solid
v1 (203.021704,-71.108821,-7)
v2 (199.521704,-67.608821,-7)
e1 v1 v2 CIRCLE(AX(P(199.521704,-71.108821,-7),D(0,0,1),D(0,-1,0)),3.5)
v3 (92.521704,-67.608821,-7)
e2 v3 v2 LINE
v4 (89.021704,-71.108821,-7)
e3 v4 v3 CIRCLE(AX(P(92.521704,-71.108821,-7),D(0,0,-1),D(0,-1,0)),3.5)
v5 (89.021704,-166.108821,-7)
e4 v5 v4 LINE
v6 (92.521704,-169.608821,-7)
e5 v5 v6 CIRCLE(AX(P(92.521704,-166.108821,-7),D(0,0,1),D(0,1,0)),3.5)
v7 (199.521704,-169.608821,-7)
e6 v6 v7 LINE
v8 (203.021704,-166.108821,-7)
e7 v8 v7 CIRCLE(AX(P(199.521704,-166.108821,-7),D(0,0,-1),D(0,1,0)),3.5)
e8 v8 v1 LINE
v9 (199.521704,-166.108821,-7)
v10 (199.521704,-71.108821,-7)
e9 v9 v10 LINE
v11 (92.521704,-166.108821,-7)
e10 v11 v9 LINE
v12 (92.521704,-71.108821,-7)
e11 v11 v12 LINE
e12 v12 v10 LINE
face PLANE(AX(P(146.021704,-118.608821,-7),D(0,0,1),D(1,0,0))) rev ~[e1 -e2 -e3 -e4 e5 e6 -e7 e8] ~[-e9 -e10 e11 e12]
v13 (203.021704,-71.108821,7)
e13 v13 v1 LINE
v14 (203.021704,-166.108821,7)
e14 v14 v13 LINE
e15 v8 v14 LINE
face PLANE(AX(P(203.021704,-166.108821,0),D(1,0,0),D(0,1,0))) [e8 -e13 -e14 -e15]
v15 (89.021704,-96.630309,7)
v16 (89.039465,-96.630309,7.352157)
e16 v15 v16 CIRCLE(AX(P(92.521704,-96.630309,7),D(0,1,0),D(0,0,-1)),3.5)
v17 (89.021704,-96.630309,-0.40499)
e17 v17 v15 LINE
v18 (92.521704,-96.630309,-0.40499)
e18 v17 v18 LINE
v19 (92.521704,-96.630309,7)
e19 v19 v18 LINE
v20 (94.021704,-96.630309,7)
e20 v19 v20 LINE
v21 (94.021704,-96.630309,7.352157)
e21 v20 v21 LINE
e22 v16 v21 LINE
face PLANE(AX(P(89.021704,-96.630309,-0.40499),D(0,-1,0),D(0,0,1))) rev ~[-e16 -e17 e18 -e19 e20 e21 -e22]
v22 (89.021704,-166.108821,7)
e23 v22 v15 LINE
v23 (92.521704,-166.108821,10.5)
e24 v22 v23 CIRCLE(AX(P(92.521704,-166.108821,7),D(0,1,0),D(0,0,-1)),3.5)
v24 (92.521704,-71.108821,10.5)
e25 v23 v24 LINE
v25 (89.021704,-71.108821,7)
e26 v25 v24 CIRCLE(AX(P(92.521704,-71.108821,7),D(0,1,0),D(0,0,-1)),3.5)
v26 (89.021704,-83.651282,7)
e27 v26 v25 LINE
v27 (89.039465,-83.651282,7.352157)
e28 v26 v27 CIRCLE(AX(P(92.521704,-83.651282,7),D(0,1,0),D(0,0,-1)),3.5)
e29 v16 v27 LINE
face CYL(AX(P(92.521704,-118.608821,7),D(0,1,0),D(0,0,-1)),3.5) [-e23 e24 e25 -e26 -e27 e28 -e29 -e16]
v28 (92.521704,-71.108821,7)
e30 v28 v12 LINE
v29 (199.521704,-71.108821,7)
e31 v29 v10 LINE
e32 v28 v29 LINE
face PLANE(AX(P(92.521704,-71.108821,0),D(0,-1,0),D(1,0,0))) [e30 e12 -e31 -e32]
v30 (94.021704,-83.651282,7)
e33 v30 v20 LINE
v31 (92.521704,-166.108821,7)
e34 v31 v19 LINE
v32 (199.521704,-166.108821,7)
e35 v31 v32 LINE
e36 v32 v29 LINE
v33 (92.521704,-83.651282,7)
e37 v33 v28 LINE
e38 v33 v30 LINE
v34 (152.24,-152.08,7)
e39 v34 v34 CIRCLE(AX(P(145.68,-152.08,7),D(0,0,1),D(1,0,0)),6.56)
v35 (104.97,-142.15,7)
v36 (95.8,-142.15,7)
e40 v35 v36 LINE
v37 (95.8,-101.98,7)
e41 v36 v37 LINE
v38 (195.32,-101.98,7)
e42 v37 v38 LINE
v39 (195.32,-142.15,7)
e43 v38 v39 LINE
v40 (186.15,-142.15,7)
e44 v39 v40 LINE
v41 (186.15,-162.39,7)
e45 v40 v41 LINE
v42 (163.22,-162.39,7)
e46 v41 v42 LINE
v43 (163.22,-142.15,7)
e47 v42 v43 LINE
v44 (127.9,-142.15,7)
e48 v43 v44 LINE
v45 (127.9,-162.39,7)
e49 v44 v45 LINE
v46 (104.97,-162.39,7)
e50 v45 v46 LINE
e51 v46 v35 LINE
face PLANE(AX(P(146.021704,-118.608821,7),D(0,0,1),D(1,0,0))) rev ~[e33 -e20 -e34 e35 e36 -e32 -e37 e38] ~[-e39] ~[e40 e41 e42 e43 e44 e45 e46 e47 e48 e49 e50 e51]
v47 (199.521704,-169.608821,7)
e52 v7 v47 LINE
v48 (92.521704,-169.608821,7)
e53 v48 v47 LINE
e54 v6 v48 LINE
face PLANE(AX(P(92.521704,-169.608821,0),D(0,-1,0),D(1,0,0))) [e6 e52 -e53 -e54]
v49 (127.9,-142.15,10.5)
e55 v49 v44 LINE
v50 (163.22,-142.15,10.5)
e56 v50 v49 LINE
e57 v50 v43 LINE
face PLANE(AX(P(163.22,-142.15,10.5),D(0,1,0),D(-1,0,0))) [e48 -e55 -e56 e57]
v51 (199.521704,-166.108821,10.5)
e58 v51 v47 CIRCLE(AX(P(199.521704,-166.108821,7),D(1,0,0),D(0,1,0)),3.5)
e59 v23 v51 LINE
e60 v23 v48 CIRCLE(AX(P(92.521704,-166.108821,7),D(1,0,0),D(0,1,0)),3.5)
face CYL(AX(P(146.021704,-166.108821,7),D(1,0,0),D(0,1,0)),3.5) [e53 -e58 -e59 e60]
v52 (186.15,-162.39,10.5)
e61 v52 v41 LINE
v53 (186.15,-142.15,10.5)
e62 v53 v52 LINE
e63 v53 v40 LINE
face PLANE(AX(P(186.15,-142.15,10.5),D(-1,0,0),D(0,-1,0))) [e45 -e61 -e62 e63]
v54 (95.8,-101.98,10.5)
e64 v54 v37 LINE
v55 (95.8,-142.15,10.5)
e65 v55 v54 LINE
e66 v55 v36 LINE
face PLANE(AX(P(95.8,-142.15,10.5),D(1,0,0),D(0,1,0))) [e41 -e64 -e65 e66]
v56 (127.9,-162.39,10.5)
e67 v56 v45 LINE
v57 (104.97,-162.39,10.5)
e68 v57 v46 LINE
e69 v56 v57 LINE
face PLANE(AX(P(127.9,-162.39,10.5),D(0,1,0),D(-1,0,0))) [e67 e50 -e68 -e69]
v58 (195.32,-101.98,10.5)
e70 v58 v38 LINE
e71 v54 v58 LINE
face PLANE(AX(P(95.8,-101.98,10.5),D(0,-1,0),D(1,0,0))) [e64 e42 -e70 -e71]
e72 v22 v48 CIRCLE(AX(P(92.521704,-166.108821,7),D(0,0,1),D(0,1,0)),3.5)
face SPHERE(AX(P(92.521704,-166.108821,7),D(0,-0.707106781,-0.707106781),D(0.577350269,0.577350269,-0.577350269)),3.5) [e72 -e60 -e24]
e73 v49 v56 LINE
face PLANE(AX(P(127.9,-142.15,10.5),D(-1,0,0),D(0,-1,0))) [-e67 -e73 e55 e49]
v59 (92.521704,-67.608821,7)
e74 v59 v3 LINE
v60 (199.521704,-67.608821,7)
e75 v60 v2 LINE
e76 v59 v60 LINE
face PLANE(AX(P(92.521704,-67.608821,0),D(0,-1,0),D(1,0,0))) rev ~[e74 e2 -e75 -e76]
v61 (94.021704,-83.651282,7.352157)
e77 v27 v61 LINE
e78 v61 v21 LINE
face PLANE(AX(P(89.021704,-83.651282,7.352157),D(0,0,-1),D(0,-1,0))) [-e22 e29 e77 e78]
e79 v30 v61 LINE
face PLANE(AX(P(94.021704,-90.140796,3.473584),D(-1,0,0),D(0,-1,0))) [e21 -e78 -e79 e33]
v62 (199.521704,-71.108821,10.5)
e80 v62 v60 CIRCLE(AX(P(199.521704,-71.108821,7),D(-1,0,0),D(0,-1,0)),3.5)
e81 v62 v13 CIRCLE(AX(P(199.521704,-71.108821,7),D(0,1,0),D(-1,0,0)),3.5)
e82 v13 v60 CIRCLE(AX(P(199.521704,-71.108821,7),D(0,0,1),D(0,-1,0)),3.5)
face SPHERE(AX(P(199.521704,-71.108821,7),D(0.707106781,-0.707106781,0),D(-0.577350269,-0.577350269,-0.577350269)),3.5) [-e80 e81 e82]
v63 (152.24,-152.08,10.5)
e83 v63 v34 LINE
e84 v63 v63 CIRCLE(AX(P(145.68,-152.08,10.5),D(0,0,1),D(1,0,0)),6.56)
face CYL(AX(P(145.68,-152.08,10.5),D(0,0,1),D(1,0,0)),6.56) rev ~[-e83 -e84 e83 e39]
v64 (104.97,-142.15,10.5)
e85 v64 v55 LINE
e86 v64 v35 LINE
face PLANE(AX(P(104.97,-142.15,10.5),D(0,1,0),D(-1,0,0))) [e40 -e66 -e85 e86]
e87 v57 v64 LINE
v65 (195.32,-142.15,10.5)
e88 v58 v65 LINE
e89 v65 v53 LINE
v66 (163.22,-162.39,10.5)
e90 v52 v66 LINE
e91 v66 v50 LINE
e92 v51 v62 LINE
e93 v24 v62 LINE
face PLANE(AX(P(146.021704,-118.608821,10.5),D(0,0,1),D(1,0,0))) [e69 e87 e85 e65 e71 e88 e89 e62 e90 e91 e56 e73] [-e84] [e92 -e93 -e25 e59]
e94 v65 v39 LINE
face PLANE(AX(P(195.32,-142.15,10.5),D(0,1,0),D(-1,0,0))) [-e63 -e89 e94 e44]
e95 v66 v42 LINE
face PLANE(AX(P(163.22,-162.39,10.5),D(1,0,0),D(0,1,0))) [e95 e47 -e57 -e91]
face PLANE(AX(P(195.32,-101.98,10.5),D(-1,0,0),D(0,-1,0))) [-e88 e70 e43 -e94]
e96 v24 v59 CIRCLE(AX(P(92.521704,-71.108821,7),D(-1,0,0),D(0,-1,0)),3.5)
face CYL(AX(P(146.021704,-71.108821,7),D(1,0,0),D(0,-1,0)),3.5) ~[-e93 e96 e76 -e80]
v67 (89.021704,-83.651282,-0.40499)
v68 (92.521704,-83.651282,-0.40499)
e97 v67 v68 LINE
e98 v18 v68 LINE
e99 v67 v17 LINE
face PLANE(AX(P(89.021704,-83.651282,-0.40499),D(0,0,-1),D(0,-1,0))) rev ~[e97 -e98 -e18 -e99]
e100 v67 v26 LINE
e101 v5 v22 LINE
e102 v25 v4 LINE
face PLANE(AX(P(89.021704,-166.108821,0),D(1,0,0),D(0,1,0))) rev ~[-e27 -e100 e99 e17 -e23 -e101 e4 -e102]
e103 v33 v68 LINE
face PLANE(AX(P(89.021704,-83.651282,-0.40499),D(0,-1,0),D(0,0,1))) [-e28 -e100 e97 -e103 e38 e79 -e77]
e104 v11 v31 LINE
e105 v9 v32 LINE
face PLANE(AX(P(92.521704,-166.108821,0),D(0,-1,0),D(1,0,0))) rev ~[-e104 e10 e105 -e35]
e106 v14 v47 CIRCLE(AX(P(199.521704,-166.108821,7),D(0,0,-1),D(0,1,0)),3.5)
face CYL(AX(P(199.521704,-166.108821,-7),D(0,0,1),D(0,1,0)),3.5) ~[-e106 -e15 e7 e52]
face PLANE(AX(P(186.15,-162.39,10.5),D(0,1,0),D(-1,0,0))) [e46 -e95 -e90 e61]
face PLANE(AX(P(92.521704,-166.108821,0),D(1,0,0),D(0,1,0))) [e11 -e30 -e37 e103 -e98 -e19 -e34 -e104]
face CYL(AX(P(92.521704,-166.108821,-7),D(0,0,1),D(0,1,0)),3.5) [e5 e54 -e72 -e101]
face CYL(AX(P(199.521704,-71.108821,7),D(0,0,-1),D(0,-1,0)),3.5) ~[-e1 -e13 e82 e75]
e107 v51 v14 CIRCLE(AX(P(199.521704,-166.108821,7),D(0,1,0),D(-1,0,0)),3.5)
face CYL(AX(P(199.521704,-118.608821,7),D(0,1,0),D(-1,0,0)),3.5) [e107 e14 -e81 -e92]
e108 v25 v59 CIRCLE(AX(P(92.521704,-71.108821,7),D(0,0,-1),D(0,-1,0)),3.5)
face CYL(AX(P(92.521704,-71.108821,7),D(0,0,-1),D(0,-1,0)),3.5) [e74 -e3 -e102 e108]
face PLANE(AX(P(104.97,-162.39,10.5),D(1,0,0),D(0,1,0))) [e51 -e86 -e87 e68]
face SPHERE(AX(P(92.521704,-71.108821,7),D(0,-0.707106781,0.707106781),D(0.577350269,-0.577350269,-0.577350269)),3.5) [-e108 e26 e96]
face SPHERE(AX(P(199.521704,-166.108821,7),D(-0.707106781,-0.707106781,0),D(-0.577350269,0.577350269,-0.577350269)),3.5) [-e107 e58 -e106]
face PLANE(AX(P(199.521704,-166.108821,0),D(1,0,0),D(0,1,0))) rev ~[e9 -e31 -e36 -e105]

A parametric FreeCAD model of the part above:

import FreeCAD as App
import Part
import Sketcher
from FreeCAD import Vector
Q = App.Units.Quantity


def faces_at(feature, points):
    """Names of the faces that lie closest to the given points."""
    faces = feature.Shape.Faces
    near = lambda p: min(range(len(faces)), key=lambda i: faces[i].distToShape(Part.Vertex(*p))[0])
    return sorted({f"Face{near(p) + 1}" for p in points})

doc = App.newDocument("Part")
body = doc.addObject("PartDesign::Body", "Body")

# Sketch on XY plane
sketch1 = body.newObject("Sketcher::SketchObject", "Sketch")
sketch1.AttachmentSupport = (doc.getObject("XY_Plane"), [""])
sketch1.MapMode = "FlatFace"
sketch1.addGeometry(Part.LineSegment(Vector(93, -71, 0), Vector(93, -166, 0)), False)
sketch1.addGeometry(Part.LineSegment(Vector(93, -166, 0), Vector(200, -166, 0)), False)
sketch1.addGeometry(Part.LineSegment(Vector(200, -166, 0), Vector(200, -71, 0)), False)
sketch1.addGeometry(Part.LineSegment(Vector(200, -71, 0), Vector(93, -71, 0)), False)
sketch1.addConstraint(Sketcher.Constraint("Coincident", 0, 2, 1, 1))
sketch1.addConstraint(Sketcher.Constraint("Coincident", 1, 2, 2, 1))
sketch1.addConstraint(Sketcher.Constraint("Coincident", 2, 2, 3, 1))
sketch1.addConstraint(Sketcher.Constraint("Coincident", 3, 2, 0, 1))
sketch1.addConstraint(Sketcher.Constraint("Vertical", 0))
sketch1.addConstraint(Sketcher.Constraint("Horizontal", 1))
sketch1.addConstraint(Sketcher.Constraint("Vertical", 2))
sketch1.addConstraint(Sketcher.Constraint("Horizontal", 3))
sketch1.addConstraint(Sketcher.Constraint("DistanceX", 1, 1, 1, 2, Q("107 mm")))
sketch1.addConstraint(Sketcher.Constraint("DistanceY", 0, 2, 0, 1, Q("95 mm")))
sketch1.addConstraint(Sketcher.Constraint("DistanceY", 0, 2, -1, 1, Q("166.108821 mm")))
sketch1.addConstraint(Sketcher.Constraint("DistanceX", -1, 1, 0, 2, Q("92.521704 mm")))
pad1 = body.newObject("PartDesign::Pad", "Pad")
pad1.Profile = sketch1
pad1.Length = 14
pad1.Midplane = True
doc.recompute()

thickness = body.newObject("PartDesign::Thickness", "Thickness")
thickness.Base = (pad1, faces_at(pad1, [(146.022, -118.609, -7)]))
thickness.Value = 3.5
thickness.Reversed = False
thickness.Join = "Arc"

# Sketch on XY plane
sketch2 = body.newObject("Sketcher::SketchObject", "Sketch001")
sketch2.AttachmentSupport = (doc.getObject("XY_Plane"), [""])
sketch2.MapMode = "FlatFace"
sketch2.AttachmentOffset = App.Placement(Vector(0, 0, 10.5), App.Rotation())
sketch2.addGeometry(Part.Circle(Vector(146, -152, 0), Vector(0, 0, 1), 7), False)
sketch2.addGeometry(Part.LineSegment(Vector(195, -102, 0), Vector(96, -102, 0)), False)
sketch2.addGeometry(Part.LineSegment(Vector(96, -102, 0), Vector(96, -142, 0)), False)
sketch2.addGeometry(Part.LineSegment(Vector(96, -142, 0), Vector(105, -142, 0)), False)
sketch2.addGeometry(Part.LineSegment(Vector(105, -142, 0), Vector(105, -162, 0)), False)
sketch2.addGeometry(Part.LineSegment(Vector(105, -162, 0), Vector(128, -162, 0)), False)
sketch2.addGeometry(Part.LineSegment(Vector(128, -162, 0), Vector(128, -142, 0)), False)
sketch2.addGeometry(Part.LineSegment(Vector(128, -142, 0), Vector(163, -142, 0)), False)
sketch2.addGeometry(Part.LineSegment(Vector(163, -142, 0), Vector(163, -162, 0)), False)
sketch2.addGeometry(Part.LineSegment(Vector(163, -162, 0), Vector(186, -162, 0)), False)
sketch2.addGeometry(Part.LineSegment(Vector(186, -162, 0), Vector(186, -142, 0)), False)
sketch2.addGeometry(Part.LineSegment(Vector(186, -142, 0), Vector(195, -142, 0)), False)
sketch2.addGeometry(Part.LineSegment(Vector(195, -142, 0), Vector(195, -102, 0)), False)
sketch2.addConstraint(Sketcher.Constraint("Coincident", 1, 2, 2, 1))
sketch2.addConstraint(Sketcher.Constraint("Coincident", 2, 2, 3, 1))
sketch2.addConstraint(Sketcher.Constraint("Coincident", 3, 2, 4, 1))
sketch2.addConstraint(Sketcher.Constraint("Coincident", 4, 2, 5, 1))
sketch2.addConstraint(Sketcher.Constraint("Coincident", 5, 2, 6, 1))
sketch2.addConstraint(Sketcher.Constraint("Coincident", 6, 2, 7, 1))
sketch2.addConstraint(Sketcher.Constraint("Coincident", 7, 2, 8, 1))
sketch2.addConstraint(Sketcher.Constraint("Coincident", 8, 2, 9, 1))
sketch2.addConstraint(Sketcher.Constraint("Coincident", 9, 2, 10, 1))
sketch2.addConstraint(Sketcher.Constraint("Coincident", 10, 2, 11, 1))
sketch2.addConstraint(Sketcher.Constraint("Coincident", 11, 2, 12, 1))
sketch2.addConstraint(Sketcher.Constraint("Coincident", 12, 2, 1, 1))
sketch2.addConstraint(Sketcher.Constraint("Horizontal", 1))
sketch2.addConstraint(Sketcher.Constraint("Vertical", 2))
sketch2.addConstraint(Sketcher.Constraint("Horizontal", 3))
sketch2.addConstraint(Sketcher.Constraint("Vertical", 4))
sketch2.addConstraint(Sketcher.Constraint("Horizontal", 5))
sketch2.addConstraint(Sketcher.Constraint("Vertical", 6))
sketch2.addConstraint(Sketcher.Constraint("Horizontal", 7))
sketch2.addConstraint(Sketcher.Constraint("Vertical", 8))
sketch2.addConstraint(Sketcher.Constraint("Horizontal", 9))
sketch2.addConstraint(Sketcher.Constraint("Vertical", 10))
sketch2.addConstraint(Sketcher.Constraint("Horizontal", 11))
sketch2.addConstraint(Sketcher.Constraint("Vertical", 12))
sketch2.addConstraint(Sketcher.Constraint("Horizontal", 3, 2, 6, 2))
sketch2.addConstraint(Sketcher.Constraint("Horizontal", 5, 2, 8, 2))
sketch2.addConstraint(Sketcher.Constraint("Horizontal", 7, 2, 10, 2))
sketch2.addConstraint(Sketcher.Constraint("Equal", 5, 9))
sketch2.addConstraint(Sketcher.Constraint("Equal", 3, 11))
sketch2.addConstraint(Sketcher.Constraint("Diameter", 0, Q("13.12 mm")))
sketch2.addConstraint(Sketcher.Constraint("DistanceX", 1, 2, 1, 1, Q("99.52 mm")))
sketch2.addConstraint(Sketcher.Constraint("DistanceX", 3, 1, 3, 2, Q("9.17 mm")))
sketch2.addConstraint(Sketcher.Constraint("DistanceX", 5, 1, 5, 2, Q("22.93 mm")))
sketch2.addConstraint(Sketcher.Constraint("DistanceY", 2, 2, 2, 1, Q("40.17 mm")))
sketch2.addConstraint(Sketcher.Constraint("DistanceY", 4, 2, 4, 1, Q("20.24 mm")))
sketch2.addConstraint(Sketcher.Constraint("DistanceX", -1, 1, 1, 2, Q("95.8 mm")))
sketch2.addConstraint(Sketcher.Constraint("DistanceY", 0, 3, 1, 2, Q("50.1 mm")))
sketch2.addConstraint(Sketcher.Constraint("DistanceX", -1, 1, 0, 3, Q("145.68 mm")))
sketch2.addConstraint(Sketcher.Constraint("DistanceY", 0, 3, -1, 1, Q("152.08 mm")))
pocket1 = body.newObject("PartDesign::Pocket", "Pocket")
pocket1.Profile = sketch2
pocket1.Length = 5

# Sketch on YZ plane
sketch3 = body.newObject("Sketcher::SketchObject", "Sketch002")
sketch3.AttachmentSupport = (doc.getObject("YZ_Plane"), [""])
sketch3.MapMode = "FlatFace"
sketch3.AttachmentOffset = App.Placement(Vector(0, 0, 89.021704), App.Rotation())
sketch3.addGeometry(Part.LineSegment(Vector(-84, 7, 0), Vector(-84, 0, 0)), False)
sketch3.addGeometry(Part.LineSegment(Vector(-84, 0, 0), Vector(-97, 0, 0)), False)
sketch3.addGeometry(Part.LineSegment(Vector(-97, 0, 0), Vector(-97, 7, 0)), False)
sketch3.addGeometry(Part.LineSegment(Vector(-97, 7, 0), Vector(-84, 7, 0)), False)
sketch3.addConstraint(Sketcher.Constraint("Coincident", 0, 2, 1, 1))
sketch3.addConstraint(Sketcher.Constraint("Coincident", 1, 2, 2, 1))
sketch3.addConstraint(Sketcher.Constraint("Coincident", 2, 2, 3, 1))
sketch3.addConstraint(Sketcher.Constraint("Coincident", 3, 2, 0, 1))
sketch3.addConstraint(Sketcher.Constraint("Vertical", 0))
sketch3.addConstraint(Sketcher.Constraint("Horizontal", 1))
sketch3.addConstraint(Sketcher.Constraint("Vertical", 2))
sketch3.addConstraint(Sketcher.Constraint("Horizontal", 3))
sketch3.addConstraint(Sketcher.Constraint("DistanceX", 1, 2, 1, 1, Q("12.979027 mm")))
sketch3.addConstraint(Sketcher.Constraint("DistanceY", 0, 2, 0, 1, Q("7.757147 mm")))
sketch3.addConstraint(Sketcher.Constraint("DistanceY", 0, 2, -1, 1, Q("0.40499 mm")))
sketch3.addConstraint(Sketcher.Constraint("DistanceX", 1, 2, -1, 1, Q("96.630309 mm")))
pocket2 = body.newObject("PartDesign::Pocket", "Pocket001")
pocket2.Profile = sketch3
pocket2.Length = 5
pocket2.Reversed = True

doc.recompute()
